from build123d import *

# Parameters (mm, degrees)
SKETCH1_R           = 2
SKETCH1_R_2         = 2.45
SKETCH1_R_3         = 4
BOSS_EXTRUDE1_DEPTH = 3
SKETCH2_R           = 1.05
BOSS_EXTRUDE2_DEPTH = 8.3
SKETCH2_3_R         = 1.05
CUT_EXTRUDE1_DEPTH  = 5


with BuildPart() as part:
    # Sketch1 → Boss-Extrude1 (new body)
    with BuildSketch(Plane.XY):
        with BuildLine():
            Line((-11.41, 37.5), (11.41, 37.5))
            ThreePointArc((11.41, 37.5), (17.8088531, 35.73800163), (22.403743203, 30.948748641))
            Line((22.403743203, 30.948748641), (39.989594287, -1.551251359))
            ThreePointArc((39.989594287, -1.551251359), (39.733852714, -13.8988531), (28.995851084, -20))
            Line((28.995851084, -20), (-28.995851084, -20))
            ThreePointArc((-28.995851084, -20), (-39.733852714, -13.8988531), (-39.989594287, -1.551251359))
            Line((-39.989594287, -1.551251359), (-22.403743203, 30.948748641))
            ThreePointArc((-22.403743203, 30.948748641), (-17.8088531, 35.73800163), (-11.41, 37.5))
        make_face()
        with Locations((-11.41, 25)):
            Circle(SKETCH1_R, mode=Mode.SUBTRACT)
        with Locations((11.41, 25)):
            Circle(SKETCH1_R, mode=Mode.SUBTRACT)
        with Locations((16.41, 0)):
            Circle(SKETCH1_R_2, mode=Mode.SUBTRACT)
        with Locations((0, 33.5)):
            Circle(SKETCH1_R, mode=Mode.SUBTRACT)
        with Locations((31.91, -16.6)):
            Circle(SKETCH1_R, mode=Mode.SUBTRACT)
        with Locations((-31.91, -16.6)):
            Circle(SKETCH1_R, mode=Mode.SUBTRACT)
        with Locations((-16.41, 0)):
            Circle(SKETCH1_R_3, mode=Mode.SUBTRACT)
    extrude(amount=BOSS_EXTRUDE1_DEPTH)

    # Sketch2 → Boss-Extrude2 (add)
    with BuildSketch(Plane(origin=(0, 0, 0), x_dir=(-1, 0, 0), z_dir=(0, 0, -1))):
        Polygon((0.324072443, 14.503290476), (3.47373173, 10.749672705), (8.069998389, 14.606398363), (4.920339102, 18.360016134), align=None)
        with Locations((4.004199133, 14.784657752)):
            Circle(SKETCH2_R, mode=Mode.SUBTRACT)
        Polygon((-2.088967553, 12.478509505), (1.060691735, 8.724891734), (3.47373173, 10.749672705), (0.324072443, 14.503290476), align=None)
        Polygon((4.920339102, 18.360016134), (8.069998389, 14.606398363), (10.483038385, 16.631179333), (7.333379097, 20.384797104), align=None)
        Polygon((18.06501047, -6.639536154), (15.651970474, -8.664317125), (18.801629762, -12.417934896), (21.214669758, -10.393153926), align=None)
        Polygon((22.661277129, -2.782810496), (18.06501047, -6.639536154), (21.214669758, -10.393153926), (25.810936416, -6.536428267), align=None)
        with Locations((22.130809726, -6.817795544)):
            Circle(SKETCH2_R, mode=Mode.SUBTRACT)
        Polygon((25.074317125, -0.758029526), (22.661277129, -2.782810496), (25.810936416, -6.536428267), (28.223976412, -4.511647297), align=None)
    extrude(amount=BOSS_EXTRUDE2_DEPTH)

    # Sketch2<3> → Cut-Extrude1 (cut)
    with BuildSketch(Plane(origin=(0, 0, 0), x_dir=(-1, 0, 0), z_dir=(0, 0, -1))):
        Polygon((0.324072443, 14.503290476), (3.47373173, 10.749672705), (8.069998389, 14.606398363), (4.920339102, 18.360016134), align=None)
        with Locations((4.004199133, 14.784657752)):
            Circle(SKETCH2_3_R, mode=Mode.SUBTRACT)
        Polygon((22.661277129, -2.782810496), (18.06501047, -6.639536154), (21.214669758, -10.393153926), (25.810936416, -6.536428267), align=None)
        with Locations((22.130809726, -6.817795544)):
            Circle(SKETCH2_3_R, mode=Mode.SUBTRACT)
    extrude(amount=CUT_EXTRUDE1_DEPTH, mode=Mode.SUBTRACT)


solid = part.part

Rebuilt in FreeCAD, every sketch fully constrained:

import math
import FreeCAD as App
import Part
import Sketcher
from FreeCAD import Vector
Q = App.Units.Quantity


def add_polygon(sketch, points):
    """Adds a closed chain of lines whose ends are joined by coincident constraints."""
    first, n = sketch.GeometryCount, len(points)
    for a, b in zip(points, points[1:] + points[:1]):
        sketch.addGeometry(Part.LineSegment(App.Vector(*a, 0), App.Vector(*b, 0)), False)
    for i in range(n):
        sketch.addConstraint(Sketcher.Constraint("Coincident", first + i, 2, first + (i + 1) % n, 1))

doc = App.newDocument("Part")
body = doc.addObject("PartDesign::Body", "Body")

# Sketch on XY plane
sketch1 = doc.addObject("Sketcher::SketchObject", "Sketch")
body.addObject(sketch1)
sketch1.AttachmentSupport = (doc.XY_Plane, [""])
sketch1.MapMode = "FlatFace"
sketch1.addGeometry([
    Part.LineSegment(Vector(11.4, 37.5, 0), Vector(-11.4, 37.5, 0)),  # 0
    Part.ArcOfCircle(Part.Circle(Vector(-11.4, 25, 0), Vector(0, 0, 1), 12.5), math.radians(90), math.radians(152)),  # 1
    Part.LineSegment(Vector(-22.4, 30.9, 0), Vector(-40, -1.6, 0)),  # 2
    Part.ArcOfCircle(Part.Circle(Vector(-29, -7.5, 0), Vector(0, 0, 1), 12.5), math.radians(152), math.radians(270)),  # 3
    Part.LineSegment(Vector(-29, -20, 0), Vector(29, -20, 0)),  # 4
    Part.ArcOfCircle(Part.Circle(Vector(29, -7.5, 0), Vector(0, 0, 1), 12.5), math.radians(-90), math.radians(28)),  # 5
    Part.LineSegment(Vector(40, -1.6, 0), Vector(22.4, 30.9, 0)),  # 6
    Part.ArcOfCircle(Part.Circle(Vector(11.4, 25, 0), Vector(0, 0, 1), 12.5), math.radians(28), math.radians(90)),  # 7
    Part.Circle(Vector(31.9, -16.6, 0), Vector(0, 0, 1), 2),  # 8
    Part.Circle(Vector(16.4, 0, 0), Vector(0, 0, 1), 2.5),  # 9
    Part.Circle(Vector(-31.9, -16.6, 0), Vector(0, 0, 1), 2),  # 10
    Part.Circle(Vector(-16.4, 0, 0), Vector(0, 0, 1), 4),  # 11
    Part.Circle(Vector(11.4, 25, 0), Vector(0, 0, 1), 2),  # 12
    Part.Circle(Vector(-11.4, 25, 0), Vector(0, 0, 1), 2),  # 13
    Part.Circle(Vector(0, 33.5, 0), Vector(0, 0, 1), 2),  # 14
], False)
sketch1.addConstraint([
    Sketcher.Constraint("Tangent", 0, 2, 1, 1),
    Sketcher.Constraint("Tangent", 1, 2, 2, 1),
    Sketcher.Constraint("Tangent", 2, 2, 3, 1),
    Sketcher.Constraint("Tangent", 3, 2, 4, 1),
    Sketcher.Constraint("Tangent", 4, 2, 5, 1),
    Sketcher.Constraint("Tangent", 5, 2, 6, 1),
    Sketcher.Constraint("Tangent", 6, 2, 7, 1),
    Sketcher.Constraint("Tangent", 7, 2, 0, 1),
    Sketcher.Constraint("Horizontal", 0),
    Sketcher.Constraint("Horizontal", 4),
    Sketcher.Constraint("Coincident", 12, 3, 7, 3),
    Sketcher.Constraint("Coincident", 13, 3, 1, 3),
    Sketcher.Constraint("Equal", 1, 3),
    Sketcher.Constraint("Equal", 3, 5),
    Sketcher.Constraint("Equal", 5, 7),
    Sketcher.Constraint("Equal", 8, 10),
    Sketcher.Constraint("Equal", 10, 12),
    Sketcher.Constraint("Equal", 12, 13),
    Sketcher.Constraint("Equal", 13, 14),
    Sketcher.Constraint("Symmetric", 9, 3, 11, 3, -1, 1),
    Sketcher.Constraint("Symmetric", 8, 3, 10, 3, -2),
    Sketcher.Constraint("Symmetric", 2, 2, 5, 2, -2),
    Sketcher.Constraint("PointOnObject", 9, 3, -1),
    Sketcher.Constraint("PointOnObject", 14, 3, -2),
    Sketcher.Constraint("Diameter", 8, Q("4 mm")),
    Sketcher.Constraint("Diameter", 11, Q("8 mm")),
    Sketcher.Constraint("Diameter", 9, Q("4.9 mm")),
    Sketcher.Constraint("Radius", 1, Q("12.5 mm")),
    Sketcher.Constraint("DistanceY", -1, 1, 1, 3, Q("25 mm")),
    Sketcher.Constraint("DistanceY", 3, 2, -1, 1, Q("20 mm")),
    Sketcher.Constraint("DistanceX", 7, 3, 9, 3, Q("5 mm")),
    Sketcher.Constraint("DistanceY", 14, 3, 0, 2, Q("4 mm")),
    Sketcher.Constraint("DistanceX", 0, 2, 0, 1, Q("22.82 mm")),
    Sketcher.Constraint("DistanceY", 8, 3, -1, 1, Q("16.6 mm")),
    Sketcher.Constraint("DistanceX", 7, 3, 8, 3, Q("20.5 mm")),
    Sketcher.Constraint("DistanceX", 4, 1, 4, 2, Q("57.991702 mm")),
])
pad1 = doc.addObject("PartDesign::Pad", "Pad")
body.addObject(pad1)
pad1.Profile = sketch1
pad1.Length = 3

# Sketch on XY plane
sketch2 = doc.addObject("Sketcher::SketchObject", "Sketch001")
body.addObject(sketch2)
sketch2.AttachmentSupport = (doc.XY_Plane, [""])
sketch2.MapMode = "FlatFace"
add_polygon(sketch2, [(-4.9, 18.4), (-0.3, 14.5), (2.1, 12.5), (-1.1, 8.7), (-3.5, 10.7), (-8.1, 14.6), (-10.5, 16.6), (-7.3, 20.4)])  # lines 0-7
sketch2.addGeometry(Part.Circle(Vector(-4, 14.8, 0), Vector(0, 0, 1), 1.1), False)  # 8
add_polygon(sketch2, [(-18.1, -6.6), (-15.7, -8.7), (-18.8, -12.4), (-21.2, -10.4), (-25.8, -6.5), (-28.2, -4.5), (-25.1, -0.8), (-22.7, -2.8)])  # lines 9-16
sketch2.addGeometry(Part.Circle(Vector(-22.1, -6.8, 0), Vector(0, 0, 1), 1.1), False)  # 17
sketch2.addConstraint([
    Sketcher.Constraint("Equal", 8, 17),
    Sketcher.Constraint("Parallel", 0, 1),
    Sketcher.Constraint("Perpendicular", 1, 2),
    Sketcher.Constraint("Perpendicular", 2, 3),
    Sketcher.Constraint("Parallel", 3, 4),
    Sketcher.Constraint("Parallel", 4, 5),
    Sketcher.Constraint("Perpendicular", 5, 6),
    Sketcher.Constraint("Perpendicular", 6, 7),
    Sketcher.Constraint("Parallel", 7, 9),
    Sketcher.Constraint("Perpendicular", 9, 10),
    Sketcher.Constraint("Perpendicular", 10, 11),
    Sketcher.Constraint("Parallel", 11, 12),
    Sketcher.Constraint("Parallel", 12, 13),
    Sketcher.Constraint("Perpendicular", 13, 14),
    Sketcher.Constraint("Perpendicular", 14, 15),
    Sketcher.Constraint("Parallel", 15, 16),
    Sketcher.Constraint("Equal", 1, 3),
    Sketcher.Constraint("Equal", 0, 4),
    Sketcher.Constraint("Equal", 3, 5),
    Sketcher.Constraint("Equal", 7, 9),
    Sketcher.Constraint("Equal", 6, 10),
    Sketcher.Constraint("Equal", 9, 11),
    Sketcher.Constraint("Equal", 4, 12),
    Sketcher.Constraint("Equal", 11, 13),
    Sketcher.Constraint("Equal", 13, 15),
    Sketcher.Constraint("Diameter", 8, Q("2.1 mm")),
    Sketcher.Constraint("Angle", 0, Q("-40 deg")),
    Sketcher.Constraint("Distance", 0, Q("6 mm")),
    Sketcher.Constraint("Distance", 2, Q("4.9 mm")),
    Sketcher.Constraint("Distance", 1, Q("3.15 mm")),
    Sketcher.Constraint("DistanceX", 4, 2, -1, 1, Q("8.069998 mm")),
    Sketcher.Constraint("DistanceX", 8, 3, -1, 1, Q("4.004199 mm")),
    Sketcher.Constraint("DistanceY", -1, 1, 4, 2, Q("14.606398 mm")),
    Sketcher.Constraint("DistanceX", 10, 2, 3, 2, Q("15.327898 mm")),
    Sketcher.Constraint("DistanceX", 17, 3, 16, 2, Q("4.065799 mm")),
    Sketcher.Constraint("DistanceY", 12, 2, -1, 1, Q("6.536428 mm")),
    Sketcher.Constraint("DistanceY", 1, 2, 8, 3, Q("2.306148 mm")),
    Sketcher.Constraint("DistanceY", 17, 3, 3, 2, Q("17.567468 mm")),
])
pad2 = doc.addObject("PartDesign::Pad", "Pad001")
body.addObject(pad2)
pad2.Profile = sketch2
pad2.Length = 8.3
pad2.Reversed = True

# Sketch on XY plane
sketch3 = doc.addObject("Sketcher::SketchObject", "Sketch002")
body.addObject(sketch3)
sketch3.AttachmentSupport = (doc.XY_Plane, [""])
sketch3.MapMode = "FlatFace"
add_polygon(sketch3, [(-0.3, 14.5), (-3.5, 10.7), (-8.1, 14.6), (-4.9, 18.4)])  # lines 0-3
sketch3.addGeometry(Part.Circle(Vector(-4, 14.8, 0), Vector(0, 0, 1), 1.1), False)  # 4
add_polygon(sketch3, [(-22.7, -2.8), (-18.1, -6.6), (-21.2, -10.4), (-25.8, -6.5)])  # lines 5-8
sketch3.addGeometry(Part.Circle(Vector(-22.1, -6.8, 0), Vector(0, 0, 1), 1.1), False)  # 9
sketch3.addConstraint([
    Sketcher.Constraint("Equal", 4, 9),
    Sketcher.Constraint("Perpendicular", 0, 1),
    Sketcher.Constraint("Perpendicular", 1, 2),
    Sketcher.Constraint("Perpendicular", 2, 3),
    Sketcher.Constraint("Parallel", 3, 5),
    Sketcher.Constraint("Perpendicular", 5, 6),
    Sketcher.Constraint("Perpendicular", 6, 7),
    Sketcher.Constraint("Perpendicular", 7, 8),
    Sketcher.Constraint("Equal", 3, 5),
    Sketcher.Constraint("Equal", 2, 6),
    Sketcher.Constraint("Diameter", 4, Q("2.1 mm")),
    Sketcher.Constraint("Angle", 0, Q("-130 deg")),
    Sketcher.Constraint("Distance", 1, Q("6 mm")),
    Sketcher.Constraint("Distance", 0, Q("4.9 mm")),
    Sketcher.Constraint("DistanceX", 1, 2, -1, 1, Q("8.069998 mm")),
    Sketcher.Constraint("DistanceX", 4, 3, -1, 1, Q("4.004199 mm")),
    Sketcher.Constraint("DistanceY", -1, 1, 1, 2, Q("14.606398 mm")),
    Sketcher.Constraint("DistanceX", 9, 3, 5, 2, Q("4.065799 mm")),
    Sketcher.Constraint("DistanceY", 7, 2, 0, 2, Q("17.286101 mm")),
    Sketcher.Constraint("DistanceX", 9, 3, -1, 1, Q("22.13081 mm")),
    Sketcher.Constraint("DistanceY", 9, 3, 0, 2, Q("17.567468 mm")),
    Sketcher.Constraint("DistanceY", 1, 2, 4, 3, Q("0.178259 mm")),
])
pocket1 = doc.addObject("PartDesign::Pocket", "Pocket")
body.addObject(pocket1)
pocket1.Profile = sketch3
pocket1.Length = 5

doc.recompute()
